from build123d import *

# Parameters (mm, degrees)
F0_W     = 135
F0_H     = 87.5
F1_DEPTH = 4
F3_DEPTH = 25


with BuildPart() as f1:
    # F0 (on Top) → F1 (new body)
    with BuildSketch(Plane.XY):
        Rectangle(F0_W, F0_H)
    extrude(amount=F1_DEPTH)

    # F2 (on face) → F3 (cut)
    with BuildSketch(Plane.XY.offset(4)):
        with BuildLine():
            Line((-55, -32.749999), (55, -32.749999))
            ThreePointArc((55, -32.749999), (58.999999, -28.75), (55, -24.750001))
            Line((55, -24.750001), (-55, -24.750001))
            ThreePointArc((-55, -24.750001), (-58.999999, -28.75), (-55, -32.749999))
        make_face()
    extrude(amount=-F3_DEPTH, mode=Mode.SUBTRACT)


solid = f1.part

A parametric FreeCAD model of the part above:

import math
import FreeCAD as App
import Part
import Sketcher

V = App.Vector
Q = App.Units.Quantity

doc = App.newDocument("Part")
body = doc.addObject("PartDesign::Body", "Body")

# Sketch on XY plane
sketch1 = doc.addObject("Sketcher::SketchObject", "Sketch")
body.addObject(sketch1)
sketch1.AttachmentSupport = (doc.XY_Plane, [""])
sketch1.MapMode = "FlatFace"
sketch1.addGeometry(Part.LineSegment(V(-68, 44, 0), V(-68, -44, 0)), False)
sketch1.addGeometry(Part.LineSegment(V(-68, -44, 0), V(68, -44, 0)), False)
sketch1.addGeometry(Part.LineSegment(V(68, -44, 0), V(68, 44, 0)), False)
sketch1.addGeometry(Part.LineSegment(V(68, 44, 0), V(-68, 44, 0)), False)
sketch1.addConstraint(Sketcher.Constraint("Coincident", 0, 2, 1, 1))
sketch1.addConstraint(Sketcher.Constraint("Coincident", 1, 2, 2, 1))
sketch1.addConstraint(Sketcher.Constraint("Coincident", 2, 2, 3, 1))
sketch1.addConstraint(Sketcher.Constraint("Coincident", 3, 2, 0, 1))
sketch1.addConstraint(Sketcher.Constraint("Vertical", 0))
sketch1.addConstraint(Sketcher.Constraint("Horizontal", 1))
sketch1.addConstraint(Sketcher.Constraint("Vertical", 2))
sketch1.addConstraint(Sketcher.Constraint("Horizontal", 3))
sketch1.addConstraint(Sketcher.Constraint("Symmetric", 0, 2, 2, 2, -1, 1))
sketch1.addConstraint(Sketcher.Constraint("DistanceX", 1, 1, 1, 2, Q("135 mm")))
sketch1.addConstraint(Sketcher.Constraint("DistanceY", 0, 2, 0, 1, Q("87.5 mm")))
pad1 = doc.addObject("PartDesign::Pad", "Pad")
body.addObject(pad1)
pad1.Profile = sketch1
pad1.Length = 4

# Sketch on XY plane
sketch2 = doc.addObject("Sketcher::SketchObject", "Sketch001")
body.addObject(sketch2)
sketch2.AttachmentSupport = (doc.XY_Plane, [""])
sketch2.MapMode = "FlatFace"
sketch2.AttachmentOffset = App.Placement(V(0, 0, 4), App.Rotation())
sketch2.addGeometry(Part.LineSegment(V(-55, -32.7, 0), V(55, -32.7, 0)), False)
sketch2.addGeometry(Part.ArcOfCircle(Part.Circle(V(55, -28.8, 0), V(0, 0, 1), 4), math.radians(-90), math.radians(90)), False)
sketch2.addGeometry(Part.LineSegment(V(55, -24.8, 0), V(-55, -24.8, 0)), False)
sketch2.addGeometry(Part.ArcOfCircle(Part.Circle(V(-55, -28.8, 0), V(0, 0, 1), 4), math.radians(90), math.radians(270)), False)
sketch2.addConstraint(Sketcher.Constraint("Tangent", 0, 2, 1, 1))
sketch2.addConstraint(Sketcher.Constraint("Tangent", 1, 2, 2, 1))
sketch2.addConstraint(Sketcher.Constraint("Tangent", 2, 2, 3, 1))
sketch2.addConstraint(Sketcher.Constraint("Tangent", 3, 2, 0, 1))
sketch2.addConstraint(Sketcher.Constraint("Horizontal", 0))
sketch2.addConstraint(Sketcher.Constraint("Horizontal", 2))
sketch2.addConstraint(Sketcher.Constraint("Radius", 1, Q("3.999999 mm")))
sketch2.addConstraint(Sketcher.Constraint("DistanceX", 0, 1, 0, 2, Q("110 mm")))
sketch2.addConstraint(Sketcher.Constraint("DistanceX", -1, 1, 1, 3, Q("55 mm")))
sketch2.addConstraint(Sketcher.Constraint("DistanceY", 1, 3, -1, 1, Q("28.75 mm")))
pocket1 = doc.addObject("PartDesign::Pocket", "Pocket")
body.addObject(pocket1)
pocket1.Profile = sketch2
pocket1.Length = 25

doc.recompute()
